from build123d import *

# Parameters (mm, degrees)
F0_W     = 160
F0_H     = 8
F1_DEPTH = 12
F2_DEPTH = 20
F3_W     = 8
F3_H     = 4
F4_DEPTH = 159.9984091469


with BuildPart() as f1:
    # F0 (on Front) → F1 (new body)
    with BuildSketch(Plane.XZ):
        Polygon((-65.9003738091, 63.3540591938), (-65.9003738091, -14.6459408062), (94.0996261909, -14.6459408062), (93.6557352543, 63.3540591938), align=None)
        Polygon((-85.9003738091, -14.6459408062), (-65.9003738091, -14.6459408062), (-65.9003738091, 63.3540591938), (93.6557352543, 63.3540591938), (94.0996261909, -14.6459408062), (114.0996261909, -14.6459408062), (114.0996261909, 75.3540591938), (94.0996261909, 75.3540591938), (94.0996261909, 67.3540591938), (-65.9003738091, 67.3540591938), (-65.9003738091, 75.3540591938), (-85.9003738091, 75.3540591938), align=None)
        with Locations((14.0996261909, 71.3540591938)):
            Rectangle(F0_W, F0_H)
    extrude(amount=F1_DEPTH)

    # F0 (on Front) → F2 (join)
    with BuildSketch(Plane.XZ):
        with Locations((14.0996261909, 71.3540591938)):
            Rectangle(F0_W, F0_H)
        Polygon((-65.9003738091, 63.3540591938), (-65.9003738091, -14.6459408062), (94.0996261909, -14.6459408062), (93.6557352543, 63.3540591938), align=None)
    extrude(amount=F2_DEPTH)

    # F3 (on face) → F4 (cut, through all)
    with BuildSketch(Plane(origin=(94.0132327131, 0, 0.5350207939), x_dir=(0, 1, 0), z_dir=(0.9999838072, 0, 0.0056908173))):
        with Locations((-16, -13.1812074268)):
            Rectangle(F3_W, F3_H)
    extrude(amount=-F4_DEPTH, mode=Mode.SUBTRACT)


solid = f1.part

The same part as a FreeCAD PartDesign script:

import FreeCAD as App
import Part
import Sketcher
Q = App.Units.Quantity


def add_polygon(sketch, points):
    """Adds a closed chain of lines whose ends are joined by coincident constraints."""
    first, n = sketch.GeometryCount, len(points)
    for a, b in zip(points, points[1:] + points[:1]):
        sketch.addGeometry(Part.LineSegment(App.Vector(*a, 0), App.Vector(*b, 0)), False)
    for i in range(n):
        sketch.addConstraint(Sketcher.Constraint("Coincident", first + i, 2, first + (i + 1) % n, 1))

doc = App.newDocument("Part")
body = doc.addObject("PartDesign::Body", "Body")

sketch1 = body.newObject("Sketcher::SketchObject", "Sketch")
sketch1.AttachmentSupport = (doc.getObject("XZ_Plane"), [""])
sketch1.MapMode = "FlatFace"
add_polygon(sketch1, [(114, -15), (114, 75), (-86, 75), (-86, -15)])
sketch1.addConstraint(Sketcher.Constraint("Vertical", 0))
sketch1.addConstraint(Sketcher.Constraint("Horizontal", 1))
sketch1.addConstraint(Sketcher.Constraint("Vertical", 2))
sketch1.addConstraint(Sketcher.Constraint("Horizontal", 3))
sketch1.addConstraint(Sketcher.Constraint("DistanceX", 1, 2, 1, 1, Q("200 mm")))
sketch1.addConstraint(Sketcher.Constraint("DistanceY", 0, 1, 0, 2, Q("90 mm")))
sketch1.addConstraint(Sketcher.Constraint("DistanceY", -1, 1, 0, 2, Q("75.354059 mm")))
sketch1.addConstraint(Sketcher.Constraint("DistanceX", -1, 1, 0, 2, Q("114.099626 mm")))
pad1 = body.newObject("PartDesign::Pad", "Pad")
pad1.Profile = sketch1
pad1.Length = 12

sketch2 = body.newObject("Sketcher::SketchObject", "Sketch001")
sketch2.AttachmentSupport = (doc.getObject("XZ_Plane"), [""])
sketch2.MapMode = "FlatFace"
add_polygon(sketch2, [(-66, 75), (-66, 67), (94, 67), (94, 75)])
add_polygon(sketch2, [(-66, 63), (-66, -15), (94, -15), (94, 63)])
sketch2.addConstraint(Sketcher.Constraint("Vertical", 0))
sketch2.addConstraint(Sketcher.Constraint("Horizontal", 1))
sketch2.addConstraint(Sketcher.Constraint("Vertical", 2))
sketch2.addConstraint(Sketcher.Constraint("Horizontal", 3))
sketch2.addConstraint(Sketcher.Constraint("Vertical", 4))
sketch2.addConstraint(Sketcher.Constraint("Horizontal", 5))
sketch2.addConstraint(Sketcher.Constraint("Horizontal", 7))
sketch2.addConstraint(Sketcher.Constraint("Vertical", 3, 2, 4, 2))
sketch2.addConstraint(Sketcher.Constraint("Vertical", 2, 2, 5, 2))
sketch2.addConstraint(Sketcher.Constraint("DistanceX", 1, 1, 1, 2, Q("160 mm")))
sketch2.addConstraint(Sketcher.Constraint("DistanceY", 0, 2, 0, 1, Q("8 mm")))
sketch2.addConstraint(Sketcher.Constraint("DistanceY", 4, 2, 4, 1, Q("78 mm")))
sketch2.addConstraint(Sketcher.Constraint("DistanceY", 4, 2, 0, 2, Q("82 mm")))
sketch2.addConstraint(Sketcher.Constraint("DistanceX", 7, 2, 7, 1, Q("159.556109 mm")))
sketch2.addConstraint(Sketcher.Constraint("DistanceY", -1, 1, 0, 2, Q("67.354059 mm")))
sketch2.addConstraint(Sketcher.Constraint("DistanceX", 0, 2, -1, 1, Q("65.900374 mm")))
pad2 = body.newObject("PartDesign::Pad", "Pad001")
pad2.Profile = sketch2
pad2.Length = 20

sketch3 = body.newObject("Sketcher::SketchObject", "Sketch002")
sketch3.Placement = App.Placement(App.Vector(94.013233, 0, 0.535021), App.Rotation(App.Vector(0, 1, 0), App.Vector(-0.005690817, 0, 0.999983807), App.Vector(0.999983807, 0, 0.005690817), "ZXY"))
add_polygon(sketch3, [(-20, -11.2), (-20, -15.2), (-12, -15.2), (-12, -11.2)])
sketch3.addConstraint(Sketcher.Constraint("Vertical", 0))
sketch3.addConstraint(Sketcher.Constraint("Horizontal", 1))
sketch3.addConstraint(Sketcher.Constraint("Vertical", 2))
sketch3.addConstraint(Sketcher.Constraint("Horizontal", 3))
sketch3.addConstraint(Sketcher.Constraint("DistanceX", 1, 1, 1, 2, Q("8 mm")))
sketch3.addConstraint(Sketcher.Constraint("DistanceY", 0, 2, 0, 1, Q("4 mm")))
sketch3.addConstraint(Sketcher.Constraint("DistanceX", 0, 2, -1, 1, Q("20 mm")))
sketch3.addConstraint(Sketcher.Constraint("DistanceY", 0, 2, -1, 1, Q("15.181207 mm")))
pocket1 = body.newObject("PartDesign::Pocket", "Pocket")
pocket1.Profile = sketch3
pocket1.Type = "ThroughAll"

doc.recompute()
